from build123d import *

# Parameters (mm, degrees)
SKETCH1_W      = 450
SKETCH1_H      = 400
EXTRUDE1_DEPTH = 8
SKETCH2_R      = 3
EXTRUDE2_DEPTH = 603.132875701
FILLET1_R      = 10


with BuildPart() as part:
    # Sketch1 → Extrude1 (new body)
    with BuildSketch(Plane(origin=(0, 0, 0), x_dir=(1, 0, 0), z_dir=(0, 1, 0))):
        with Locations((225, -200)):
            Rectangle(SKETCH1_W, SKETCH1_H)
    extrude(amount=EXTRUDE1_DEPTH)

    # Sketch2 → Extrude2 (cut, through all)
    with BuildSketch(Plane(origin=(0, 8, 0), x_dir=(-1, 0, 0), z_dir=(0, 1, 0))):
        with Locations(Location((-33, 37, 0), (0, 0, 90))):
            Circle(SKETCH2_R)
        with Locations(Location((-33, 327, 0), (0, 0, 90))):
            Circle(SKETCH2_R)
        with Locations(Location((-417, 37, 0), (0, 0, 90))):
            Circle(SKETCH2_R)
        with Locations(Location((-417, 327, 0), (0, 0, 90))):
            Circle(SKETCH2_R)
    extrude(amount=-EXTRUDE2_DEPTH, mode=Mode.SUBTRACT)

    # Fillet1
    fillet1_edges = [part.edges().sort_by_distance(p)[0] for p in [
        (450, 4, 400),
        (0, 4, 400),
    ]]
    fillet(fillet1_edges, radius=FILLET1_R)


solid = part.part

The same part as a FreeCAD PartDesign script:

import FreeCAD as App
import Part
import Sketcher

V = App.Vector
Q = App.Units.Quantity


def edges_at(feature, points):
    """Names of the edges that pass closest to the given points."""
    edges = feature.Shape.Edges
    near = lambda p: min(range(len(edges)), key=lambda i: edges[i].distToShape(Part.Vertex(*p))[0])
    return sorted({f"Edge{near(p) + 1}" for p in points})


def add_polygon(sketch, points):
    """Adds a closed chain of lines whose ends are joined by coincident constraints."""
    first, n = sketch.GeometryCount, len(points)
    for a, b in zip(points, points[1:] + points[:1]):
        sketch.addGeometry(Part.LineSegment(App.Vector(*a, 0), App.Vector(*b, 0)), False)
    for i in range(n):
        sketch.addConstraint(Sketcher.Constraint("Coincident", first + i, 2, first + (i + 1) % n, 1))

doc = App.newDocument("Part")
body = doc.addObject("PartDesign::Body", "Body")

# Sketch on XZ plane
sketch1 = body.newObject("Sketcher::SketchObject", "Sketch")
sketch1.AttachmentSupport = (doc.getObject("XZ_Plane"), [""])
sketch1.MapMode = "FlatFace"
add_polygon(sketch1, [(0, 0), (0, 400), (450, 400), (450, 0)])  # lines 0-3
sketch1.addConstraint([
    Sketcher.Constraint("Vertical", 0),
    Sketcher.Constraint("Horizontal", 1),
    Sketcher.Constraint("Vertical", 2),
    Sketcher.Constraint("Horizontal", 3),
    Sketcher.Constraint("Coincident", 3, 2, -1, 1),
    Sketcher.Constraint("DistanceX", 1, 1, 1, 2, Q("450 mm")),
    Sketcher.Constraint("DistanceY", 0, 1, 0, 2, Q("400 mm")),
])
pad1 = body.newObject("PartDesign::Pad", "Pad")
pad1.Profile = sketch1
pad1.Length = 8
pad1.Reversed = True

# Sketch on XZ plane
sketch2 = body.newObject("Sketcher::SketchObject", "Sketch001")
sketch2.AttachmentSupport = (doc.getObject("XZ_Plane"), [""])
sketch2.MapMode = "FlatFace"
sketch2.AttachmentOffset = App.Placement(V(0, 0, -8), App.Rotation())
sketch2.addGeometry([
    Part.Circle(V(33, 37, 0), V(0, 0, 1), 3),
    Part.Circle(V(33, 327, 0), V(0, 0, 1), 3),
    Part.Circle(V(417, 37, 0), V(0, 0, 1), 3),
    Part.Circle(V(417, 327, 0), V(0, 0, 1), 3),
], False)
sketch2.addConstraint([
    Sketcher.Constraint("Equal", 0, 1),
    Sketcher.Constraint("Equal", 1, 2),
    Sketcher.Constraint("Equal", 2, 3),
    Sketcher.Constraint("Horizontal", 0, 3, 2, 3),
    Sketcher.Constraint("Horizontal", 1, 3, 3, 3),
    Sketcher.Constraint("Vertical", 0, 3, 1, 3),
    Sketcher.Constraint("Vertical", 2, 3, 3, 3),
    Sketcher.Constraint("Diameter", 0, Q("6 mm")),
    Sketcher.Constraint("DistanceX", -1, 1, 0, 3, Q("33 mm")),
    Sketcher.Constraint("DistanceY", -1, 1, 0, 3, Q("37 mm")),
    Sketcher.Constraint("DistanceY", -1, 1, 1, 3, Q("327 mm")),
    Sketcher.Constraint("DistanceX", -1, 1, 2, 3, Q("417 mm")),
])
pocket1 = body.newObject("PartDesign::Pocket", "Pocket")
pocket1.Profile = sketch2
pocket1.Type = "ThroughAll"
pocket1.Reversed = True
doc.recompute()

fillet = body.newObject("PartDesign::Fillet", "Fillet")
fillet.Base = (pocket1, edges_at(pocket1, [(450, 4, 400), (0, 4, 400)]))
fillet.Radius = 10

doc.recompute()
